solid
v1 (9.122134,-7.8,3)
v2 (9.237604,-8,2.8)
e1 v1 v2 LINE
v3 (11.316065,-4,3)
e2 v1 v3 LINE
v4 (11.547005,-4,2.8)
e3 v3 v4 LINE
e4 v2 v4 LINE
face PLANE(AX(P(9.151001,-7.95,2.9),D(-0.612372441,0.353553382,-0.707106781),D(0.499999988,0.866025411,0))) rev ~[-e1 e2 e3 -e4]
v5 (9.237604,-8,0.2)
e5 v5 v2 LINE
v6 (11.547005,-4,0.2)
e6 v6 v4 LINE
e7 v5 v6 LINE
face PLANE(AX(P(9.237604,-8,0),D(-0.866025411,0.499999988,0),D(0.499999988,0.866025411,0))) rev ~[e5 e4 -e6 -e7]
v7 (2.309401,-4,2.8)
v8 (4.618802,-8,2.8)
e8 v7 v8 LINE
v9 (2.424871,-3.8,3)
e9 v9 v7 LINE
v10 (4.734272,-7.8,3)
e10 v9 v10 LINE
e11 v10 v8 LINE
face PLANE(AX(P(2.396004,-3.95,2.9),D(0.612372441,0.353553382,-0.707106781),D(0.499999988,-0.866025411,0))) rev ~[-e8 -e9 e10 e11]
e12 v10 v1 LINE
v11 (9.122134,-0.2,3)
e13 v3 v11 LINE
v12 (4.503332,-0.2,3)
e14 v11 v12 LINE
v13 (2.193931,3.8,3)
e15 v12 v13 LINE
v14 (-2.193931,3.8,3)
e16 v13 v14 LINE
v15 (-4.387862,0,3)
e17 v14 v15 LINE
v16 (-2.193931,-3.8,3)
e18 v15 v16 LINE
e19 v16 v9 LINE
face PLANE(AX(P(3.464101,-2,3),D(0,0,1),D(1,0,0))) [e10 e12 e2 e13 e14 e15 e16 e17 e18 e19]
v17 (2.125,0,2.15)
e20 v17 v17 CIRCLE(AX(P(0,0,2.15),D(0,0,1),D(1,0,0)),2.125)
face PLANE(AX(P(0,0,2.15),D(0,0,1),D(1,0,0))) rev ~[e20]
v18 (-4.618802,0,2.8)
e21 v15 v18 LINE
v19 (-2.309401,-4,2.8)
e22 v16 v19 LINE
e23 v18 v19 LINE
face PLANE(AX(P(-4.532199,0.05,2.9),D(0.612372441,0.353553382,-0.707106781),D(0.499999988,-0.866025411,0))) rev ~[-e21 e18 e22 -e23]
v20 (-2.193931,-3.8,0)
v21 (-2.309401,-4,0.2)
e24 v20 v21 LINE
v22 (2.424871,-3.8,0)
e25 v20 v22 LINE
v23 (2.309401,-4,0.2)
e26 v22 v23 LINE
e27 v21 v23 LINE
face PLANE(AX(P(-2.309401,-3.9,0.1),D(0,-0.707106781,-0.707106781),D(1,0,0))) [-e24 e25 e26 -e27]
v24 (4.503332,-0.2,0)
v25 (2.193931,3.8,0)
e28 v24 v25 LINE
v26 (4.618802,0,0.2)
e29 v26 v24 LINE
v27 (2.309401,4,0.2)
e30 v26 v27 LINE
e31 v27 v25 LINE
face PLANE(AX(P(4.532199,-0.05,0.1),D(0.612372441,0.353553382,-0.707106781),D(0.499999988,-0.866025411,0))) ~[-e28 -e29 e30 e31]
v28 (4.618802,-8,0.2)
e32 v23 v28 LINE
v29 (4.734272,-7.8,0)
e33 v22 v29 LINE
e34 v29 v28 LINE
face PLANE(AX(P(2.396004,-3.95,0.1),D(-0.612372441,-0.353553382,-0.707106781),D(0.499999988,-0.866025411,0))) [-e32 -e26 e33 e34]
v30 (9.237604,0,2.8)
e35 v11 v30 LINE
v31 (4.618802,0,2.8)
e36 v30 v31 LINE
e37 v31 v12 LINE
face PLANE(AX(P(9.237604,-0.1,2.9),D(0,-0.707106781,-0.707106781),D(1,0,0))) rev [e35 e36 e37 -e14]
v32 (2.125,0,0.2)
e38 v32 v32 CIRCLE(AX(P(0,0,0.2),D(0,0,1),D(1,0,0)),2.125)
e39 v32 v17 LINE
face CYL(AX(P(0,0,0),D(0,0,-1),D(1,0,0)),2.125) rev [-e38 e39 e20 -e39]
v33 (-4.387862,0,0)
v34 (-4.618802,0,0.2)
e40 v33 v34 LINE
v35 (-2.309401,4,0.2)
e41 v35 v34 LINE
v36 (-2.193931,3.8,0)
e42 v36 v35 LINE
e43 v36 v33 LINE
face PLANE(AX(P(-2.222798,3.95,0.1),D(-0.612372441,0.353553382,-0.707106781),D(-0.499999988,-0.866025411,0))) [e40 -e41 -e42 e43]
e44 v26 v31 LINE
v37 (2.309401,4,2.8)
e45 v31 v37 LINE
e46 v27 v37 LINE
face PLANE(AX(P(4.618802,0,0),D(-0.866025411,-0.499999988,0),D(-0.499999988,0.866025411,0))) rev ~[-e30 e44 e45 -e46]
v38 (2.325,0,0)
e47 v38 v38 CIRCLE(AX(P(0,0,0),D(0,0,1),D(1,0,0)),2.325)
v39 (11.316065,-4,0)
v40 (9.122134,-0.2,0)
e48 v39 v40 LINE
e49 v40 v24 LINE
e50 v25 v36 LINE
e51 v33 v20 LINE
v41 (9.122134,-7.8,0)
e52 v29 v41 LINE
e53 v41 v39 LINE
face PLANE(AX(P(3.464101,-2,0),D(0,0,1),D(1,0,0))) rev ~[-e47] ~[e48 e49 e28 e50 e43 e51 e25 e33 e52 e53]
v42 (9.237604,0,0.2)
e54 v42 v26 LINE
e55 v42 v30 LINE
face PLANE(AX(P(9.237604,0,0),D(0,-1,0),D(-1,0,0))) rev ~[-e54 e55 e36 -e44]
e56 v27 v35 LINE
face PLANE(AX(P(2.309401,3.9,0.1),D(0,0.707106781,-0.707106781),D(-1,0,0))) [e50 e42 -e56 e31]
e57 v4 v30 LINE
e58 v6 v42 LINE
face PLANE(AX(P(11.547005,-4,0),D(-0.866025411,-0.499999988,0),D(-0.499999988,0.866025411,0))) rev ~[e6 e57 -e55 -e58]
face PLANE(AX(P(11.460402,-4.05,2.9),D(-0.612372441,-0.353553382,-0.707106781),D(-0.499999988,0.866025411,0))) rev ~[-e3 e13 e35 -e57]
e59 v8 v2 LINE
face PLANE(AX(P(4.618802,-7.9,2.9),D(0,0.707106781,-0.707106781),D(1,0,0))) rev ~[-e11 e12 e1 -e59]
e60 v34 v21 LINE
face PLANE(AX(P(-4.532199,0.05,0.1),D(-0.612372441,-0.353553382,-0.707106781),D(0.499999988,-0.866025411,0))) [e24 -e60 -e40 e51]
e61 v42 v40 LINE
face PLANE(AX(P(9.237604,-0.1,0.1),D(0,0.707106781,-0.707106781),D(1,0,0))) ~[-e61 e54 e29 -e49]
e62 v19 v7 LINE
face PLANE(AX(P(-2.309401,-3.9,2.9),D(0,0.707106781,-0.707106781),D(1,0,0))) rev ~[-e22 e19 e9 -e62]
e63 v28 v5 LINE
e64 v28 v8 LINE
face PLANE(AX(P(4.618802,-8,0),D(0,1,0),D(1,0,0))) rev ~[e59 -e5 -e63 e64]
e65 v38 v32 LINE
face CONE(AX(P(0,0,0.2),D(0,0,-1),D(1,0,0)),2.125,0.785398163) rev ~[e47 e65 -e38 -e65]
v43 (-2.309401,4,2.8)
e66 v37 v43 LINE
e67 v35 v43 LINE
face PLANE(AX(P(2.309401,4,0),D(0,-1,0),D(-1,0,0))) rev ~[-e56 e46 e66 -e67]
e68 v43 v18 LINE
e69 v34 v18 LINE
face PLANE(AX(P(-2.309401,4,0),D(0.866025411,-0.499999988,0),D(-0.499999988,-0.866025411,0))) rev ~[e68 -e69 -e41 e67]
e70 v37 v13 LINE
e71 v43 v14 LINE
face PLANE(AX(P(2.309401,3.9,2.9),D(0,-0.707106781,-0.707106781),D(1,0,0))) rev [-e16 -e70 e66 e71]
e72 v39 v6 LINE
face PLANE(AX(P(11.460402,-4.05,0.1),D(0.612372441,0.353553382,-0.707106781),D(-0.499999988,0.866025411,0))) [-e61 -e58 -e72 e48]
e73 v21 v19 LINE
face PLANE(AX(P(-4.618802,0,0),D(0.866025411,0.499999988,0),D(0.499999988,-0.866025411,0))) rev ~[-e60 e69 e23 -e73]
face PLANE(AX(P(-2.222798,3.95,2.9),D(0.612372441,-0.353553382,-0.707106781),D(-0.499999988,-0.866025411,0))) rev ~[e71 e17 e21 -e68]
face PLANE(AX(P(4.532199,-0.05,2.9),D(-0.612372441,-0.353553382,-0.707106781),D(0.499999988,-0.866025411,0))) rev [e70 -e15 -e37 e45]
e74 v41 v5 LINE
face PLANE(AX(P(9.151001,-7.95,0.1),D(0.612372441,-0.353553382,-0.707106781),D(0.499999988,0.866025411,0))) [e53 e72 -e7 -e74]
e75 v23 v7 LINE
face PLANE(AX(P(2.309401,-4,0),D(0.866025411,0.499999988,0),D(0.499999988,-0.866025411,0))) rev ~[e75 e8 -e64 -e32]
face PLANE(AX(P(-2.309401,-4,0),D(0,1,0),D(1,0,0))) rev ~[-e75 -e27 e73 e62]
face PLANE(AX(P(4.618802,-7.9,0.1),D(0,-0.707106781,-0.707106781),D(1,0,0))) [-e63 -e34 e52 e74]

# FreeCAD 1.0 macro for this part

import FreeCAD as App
import Part
import Sketcher

V = App.Vector
Q = App.Units.Quantity


def edges_at(feature, points):
    """Names of the edges that pass closest to the given points."""
    edges = feature.Shape.Edges
    near = lambda p: min(range(len(edges)), key=lambda i: edges[i].distToShape(Part.Vertex(*p))[0])
    return sorted({f"Edge{near(p) + 1}" for p in points})


def add_polygon(sketch, points):
    """Adds a closed chain of lines whose ends are joined by coincident constraints."""
    first, n = sketch.GeometryCount, len(points)
    for a, b in zip(points, points[1:] + points[:1]):
        sketch.addGeometry(Part.LineSegment(App.Vector(*a, 0), App.Vector(*b, 0)), False)
    for i in range(n):
        sketch.addConstraint(Sketcher.Constraint("Coincident", first + i, 2, first + (i + 1) % n, 1))

doc = App.newDocument("Part")
params = doc.addObject("Spreadsheet::Sheet", "Params")
for row, (alias, value) in enumerate([
    ("pad1_length", "3 mm"),
    ("sketch2_diameter", "4.25 mm"),
    ("pocket1_length", "2.15 mm"),
    ("chamfer_size", "0.2 mm"),
    ("chamfer2_size", "0.2 mm"),
], start=1):
    params.set(f"A{row}", alias)
    params.set(f"B{row}", "=" + value)
    params.setAlias(f"B{row}", alias)

body = doc.addObject("PartDesign::Body", "Body")

sketch1 = body.newObject("Sketcher::SketchObject", "Sketch")
sketch1.AttachmentSupport = (doc.getObject("XY_Plane"), [""])
sketch1.MapMode = "FlatFace"
add_polygon(sketch1, [(4.6, 0), (2.3, 4), (-2.3, 4), (-4.6, 0), (-2.3, -4), (2.3, -4), (4.6, -8), (9.2, -8), (11.5, -4), (9.2, 0)])
sketch1.addConstraint([
    Sketcher.Constraint("Horizontal", 1),
    Sketcher.Constraint("Horizontal", 4),
    Sketcher.Constraint("Horizontal", 6),
    Sketcher.Constraint("Horizontal", 9),
    Sketcher.Constraint("Symmetric", 0, 2, 3, 2, -1, 1),
    Sketcher.Constraint("Symmetric", 2, 2, 9, 2, -1, 1),
    Sketcher.Constraint("PointOnObject", 2, 2, -1),
    Sketcher.Constraint("Parallel", 3, 5),
    Sketcher.Constraint("Parallel", 2, 7),
    Sketcher.Constraint("Parallel", 5, 8),
    Sketcher.Constraint("Horizontal", 4, 2, 7, 2),
    Sketcher.Constraint("Vertical", 1, 2, 3, 2),
    Sketcher.Constraint("Vertical", 0, 2, 4, 2),
    Sketcher.Constraint("Vertical", 6, 2, 8, 2),
    Sketcher.Constraint("Equal", 4, 6),
    Sketcher.Constraint("Angle", 0, Q("119.999999 deg")),
    Sketcher.Constraint("DistanceY", -1, 1, 0, 2, 4.0),
    Sketcher.Constraint("DistanceX", 1, 2, 1, 1, 4.618802),
])
pad1 = body.newObject("PartDesign::Pad", "Pad")
pad1.Profile = sketch1
pad1.setExpression("Length", "Params.pad1_length")

sketch2 = body.newObject("Sketcher::SketchObject", "Sketch001")
sketch2.AttachmentSupport = (doc.getObject("XY_Plane"), [""])
sketch2.MapMode = "FlatFace"
sketch2.addGeometry(Part.Circle(V(0, 0, 0), V(0, 0, 1), 2.1), False)
sketch2.addConstraint([
    Sketcher.Constraint("Coincident", 0, 3, -1, 1),
    Sketcher.Constraint("Diameter", 0, 4.25),
])
sketch2.setExpression("Constraints[1]", "Params.sketch2_diameter")
pocket1 = body.newObject("PartDesign::Pocket", "Pocket")
pocket1.Profile = sketch2
pocket1.setExpression("Length", "Params.pocket1_length")
pocket1.Reversed = True
doc.recompute()

chamfer = body.newObject("PartDesign::Chamfer", "Chamfer")
chamfer.Base = (pocket1, edges_at(pocket1, [
    (3.464, 2, 3),
    (0, 4, 3),
    (-3.464, 2, 3),
    (-3.464, -2, 3),
    (0, -4, 3),
    (3.464, -6, 3),
    (6.928, -8, 3),
    (10.392, -6, 3),
    (10.392, -2, 3),
    (6.928, 0, 3),
]))
chamfer.setExpression("Size", "Params.chamfer_size")
doc.recompute()

chamfer2 = body.newObject("PartDesign::Chamfer", "Chamfer001")
chamfer2.Base = (chamfer, edges_at(chamfer, [
    (3.464, 2, 0),
    (6.928, 0, 0),
    (0, 4, 0),
    (10.392, -2, 0),
    (-3.464, 2, 0),
    (10.392, -6, 0),
    (-3.464, -2, 0),
    (6.928, -8, 0),
    (0, -4, 0),
    (3.464, -6, 0),
    (-2.125, 0, 0),
]))
chamfer2.setExpression("Size", "Params.chamfer2_size")

doc.recompute()
